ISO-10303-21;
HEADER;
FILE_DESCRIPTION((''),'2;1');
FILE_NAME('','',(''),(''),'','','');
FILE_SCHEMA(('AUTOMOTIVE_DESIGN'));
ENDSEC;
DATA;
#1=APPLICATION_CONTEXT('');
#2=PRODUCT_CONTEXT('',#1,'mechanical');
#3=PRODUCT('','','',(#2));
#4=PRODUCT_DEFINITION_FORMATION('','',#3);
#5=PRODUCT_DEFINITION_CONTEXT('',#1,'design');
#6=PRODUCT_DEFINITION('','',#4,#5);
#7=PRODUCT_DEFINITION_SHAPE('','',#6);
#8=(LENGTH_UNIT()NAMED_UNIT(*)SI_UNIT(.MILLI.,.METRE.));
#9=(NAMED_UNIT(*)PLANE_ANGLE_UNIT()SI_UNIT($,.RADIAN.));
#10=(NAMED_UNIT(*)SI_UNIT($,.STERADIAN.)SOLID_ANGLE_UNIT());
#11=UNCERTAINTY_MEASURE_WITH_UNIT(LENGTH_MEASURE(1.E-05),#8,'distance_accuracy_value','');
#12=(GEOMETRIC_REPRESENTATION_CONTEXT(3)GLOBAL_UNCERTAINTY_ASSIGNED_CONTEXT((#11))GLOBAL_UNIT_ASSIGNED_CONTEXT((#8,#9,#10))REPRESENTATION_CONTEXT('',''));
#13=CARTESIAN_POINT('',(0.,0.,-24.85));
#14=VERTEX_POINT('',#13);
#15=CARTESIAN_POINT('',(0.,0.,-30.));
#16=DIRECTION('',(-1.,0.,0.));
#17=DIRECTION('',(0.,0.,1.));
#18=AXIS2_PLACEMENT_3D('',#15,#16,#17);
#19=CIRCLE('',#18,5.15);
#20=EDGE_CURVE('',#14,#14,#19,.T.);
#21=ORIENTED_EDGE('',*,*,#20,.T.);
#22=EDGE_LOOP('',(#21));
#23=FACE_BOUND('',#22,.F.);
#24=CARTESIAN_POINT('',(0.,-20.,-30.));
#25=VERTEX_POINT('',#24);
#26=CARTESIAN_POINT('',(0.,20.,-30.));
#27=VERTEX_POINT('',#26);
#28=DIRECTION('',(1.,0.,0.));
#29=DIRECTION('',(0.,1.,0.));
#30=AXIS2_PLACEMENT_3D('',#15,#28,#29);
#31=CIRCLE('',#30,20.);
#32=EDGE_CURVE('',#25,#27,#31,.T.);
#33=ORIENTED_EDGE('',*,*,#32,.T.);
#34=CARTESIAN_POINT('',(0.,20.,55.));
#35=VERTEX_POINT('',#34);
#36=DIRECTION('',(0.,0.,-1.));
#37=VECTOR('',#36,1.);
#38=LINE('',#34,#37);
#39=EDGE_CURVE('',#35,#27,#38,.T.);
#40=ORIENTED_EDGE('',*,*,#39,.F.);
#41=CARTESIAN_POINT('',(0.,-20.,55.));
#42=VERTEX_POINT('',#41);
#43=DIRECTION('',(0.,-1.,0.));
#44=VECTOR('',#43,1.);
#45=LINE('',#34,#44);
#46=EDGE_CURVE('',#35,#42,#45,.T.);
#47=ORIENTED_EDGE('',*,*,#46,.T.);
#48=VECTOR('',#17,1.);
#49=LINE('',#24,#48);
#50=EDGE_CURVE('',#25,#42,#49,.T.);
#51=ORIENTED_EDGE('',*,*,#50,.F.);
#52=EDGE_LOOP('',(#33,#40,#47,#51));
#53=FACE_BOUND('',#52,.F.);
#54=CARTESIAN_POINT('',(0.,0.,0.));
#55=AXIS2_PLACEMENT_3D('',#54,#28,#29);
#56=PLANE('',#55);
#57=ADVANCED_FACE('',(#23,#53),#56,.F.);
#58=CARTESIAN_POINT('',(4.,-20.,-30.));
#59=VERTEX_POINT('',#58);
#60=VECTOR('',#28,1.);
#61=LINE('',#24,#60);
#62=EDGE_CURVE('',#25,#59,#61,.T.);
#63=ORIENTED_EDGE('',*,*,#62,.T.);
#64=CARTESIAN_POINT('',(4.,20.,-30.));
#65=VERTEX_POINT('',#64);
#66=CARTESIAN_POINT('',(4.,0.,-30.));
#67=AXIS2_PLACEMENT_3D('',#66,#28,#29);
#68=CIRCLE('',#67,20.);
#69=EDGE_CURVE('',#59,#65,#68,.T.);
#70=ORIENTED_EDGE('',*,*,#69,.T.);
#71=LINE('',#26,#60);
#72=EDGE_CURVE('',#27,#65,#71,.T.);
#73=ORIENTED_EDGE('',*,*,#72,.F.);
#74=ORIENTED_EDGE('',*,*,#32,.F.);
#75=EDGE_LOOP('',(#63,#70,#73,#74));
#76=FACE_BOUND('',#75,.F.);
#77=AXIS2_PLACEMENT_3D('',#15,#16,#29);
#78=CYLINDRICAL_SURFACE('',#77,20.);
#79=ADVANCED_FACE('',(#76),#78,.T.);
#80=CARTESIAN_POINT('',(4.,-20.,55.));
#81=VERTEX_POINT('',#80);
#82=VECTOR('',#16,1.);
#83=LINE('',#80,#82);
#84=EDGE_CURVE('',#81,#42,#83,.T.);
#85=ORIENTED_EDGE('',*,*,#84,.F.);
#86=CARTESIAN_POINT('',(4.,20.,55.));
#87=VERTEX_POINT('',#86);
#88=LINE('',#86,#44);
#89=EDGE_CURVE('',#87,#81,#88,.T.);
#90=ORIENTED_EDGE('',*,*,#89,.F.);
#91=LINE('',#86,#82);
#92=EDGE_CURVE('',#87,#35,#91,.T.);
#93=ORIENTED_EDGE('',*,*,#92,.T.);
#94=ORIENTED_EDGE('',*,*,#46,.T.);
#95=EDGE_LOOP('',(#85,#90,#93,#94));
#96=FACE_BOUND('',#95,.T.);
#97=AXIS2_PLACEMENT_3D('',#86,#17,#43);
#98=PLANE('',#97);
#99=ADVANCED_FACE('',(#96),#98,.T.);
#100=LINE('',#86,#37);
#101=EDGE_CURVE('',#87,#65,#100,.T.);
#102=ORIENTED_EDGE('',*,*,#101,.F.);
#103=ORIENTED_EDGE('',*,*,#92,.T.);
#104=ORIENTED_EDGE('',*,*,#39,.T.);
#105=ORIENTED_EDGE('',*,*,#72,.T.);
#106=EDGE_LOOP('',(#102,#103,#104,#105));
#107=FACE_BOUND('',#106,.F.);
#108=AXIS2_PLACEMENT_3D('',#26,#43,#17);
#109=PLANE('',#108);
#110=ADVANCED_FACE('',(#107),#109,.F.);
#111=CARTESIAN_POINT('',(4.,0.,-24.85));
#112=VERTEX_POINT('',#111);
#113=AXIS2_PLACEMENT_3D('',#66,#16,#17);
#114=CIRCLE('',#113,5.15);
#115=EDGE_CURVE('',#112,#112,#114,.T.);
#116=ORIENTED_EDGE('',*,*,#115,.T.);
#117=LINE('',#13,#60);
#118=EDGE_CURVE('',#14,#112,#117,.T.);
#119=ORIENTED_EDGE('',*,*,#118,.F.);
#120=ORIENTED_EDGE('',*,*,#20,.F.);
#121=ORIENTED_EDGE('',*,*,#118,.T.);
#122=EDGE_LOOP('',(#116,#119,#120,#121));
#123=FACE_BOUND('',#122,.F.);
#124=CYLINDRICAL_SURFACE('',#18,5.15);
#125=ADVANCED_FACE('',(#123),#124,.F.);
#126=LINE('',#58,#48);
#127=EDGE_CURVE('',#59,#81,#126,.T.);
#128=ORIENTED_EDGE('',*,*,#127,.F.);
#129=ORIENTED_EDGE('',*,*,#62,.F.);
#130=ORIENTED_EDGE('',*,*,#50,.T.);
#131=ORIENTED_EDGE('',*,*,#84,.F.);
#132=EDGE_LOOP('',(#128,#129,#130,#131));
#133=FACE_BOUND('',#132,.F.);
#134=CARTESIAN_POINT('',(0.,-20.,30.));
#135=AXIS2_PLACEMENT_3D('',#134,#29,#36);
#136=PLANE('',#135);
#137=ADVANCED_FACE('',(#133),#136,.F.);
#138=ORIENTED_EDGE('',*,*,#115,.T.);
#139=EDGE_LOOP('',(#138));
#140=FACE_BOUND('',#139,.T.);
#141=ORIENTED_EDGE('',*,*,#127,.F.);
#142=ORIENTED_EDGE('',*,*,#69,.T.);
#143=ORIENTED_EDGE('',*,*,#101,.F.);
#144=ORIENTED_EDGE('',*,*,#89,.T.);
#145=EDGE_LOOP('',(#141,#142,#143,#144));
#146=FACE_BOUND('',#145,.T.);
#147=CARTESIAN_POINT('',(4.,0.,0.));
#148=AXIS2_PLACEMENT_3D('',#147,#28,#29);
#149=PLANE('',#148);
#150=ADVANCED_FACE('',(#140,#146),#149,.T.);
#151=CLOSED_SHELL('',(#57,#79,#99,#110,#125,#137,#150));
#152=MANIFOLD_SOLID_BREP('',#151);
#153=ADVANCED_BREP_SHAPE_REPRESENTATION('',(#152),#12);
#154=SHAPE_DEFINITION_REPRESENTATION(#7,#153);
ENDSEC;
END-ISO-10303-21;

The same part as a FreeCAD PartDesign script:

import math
import FreeCAD as App
import Part
import Sketcher

V = App.Vector


def add_polygon(sketch, points):
    """Adds a closed chain of lines whose ends are joined by coincident constraints."""
    first, n = sketch.GeometryCount, len(points)
    for a, b in zip(points, points[1:] + points[:1]):
        sketch.addGeometry(Part.LineSegment(App.Vector(*a, 0), App.Vector(*b, 0)), False)
    for i in range(n):
        sketch.addConstraint(Sketcher.Constraint("Coincident", first + i, 2, first + (i + 1) % n, 1))

doc = App.newDocument("Part")
body = doc.addObject("PartDesign::Body", "Body")

sketch1 = body.newObject("Sketcher::SketchObject", "Sketch")
sketch1.AttachmentSupport = (doc.getObject("YZ_Plane"), [""])
sketch1.MapMode = "FlatFace"
sketch1.addGeometry([
    Part.LineSegment(V(-20, 30, 0), V(-20, -30, 0)),
    Part.ArcOfCircle(Part.Circle(V(0, -30, 0), V(0, 0, 1), 20), math.radians(180), math.radians(360)),
    Part.LineSegment(V(20, -30, 0), V(20, 30, 0)),
    Part.LineSegment(V(20, 30, 0), V(-20, 30, 0)),
], False)
sketch1.addConstraint([
    Sketcher.Constraint("Tangent", 0, 2, 1, 1),
    Sketcher.Constraint("Tangent", 1, 2, 2, 1),
    Sketcher.Constraint("Coincident", 2, 2, 3, 1),
    Sketcher.Constraint("Coincident", 3, 2, 0, 1),
    Sketcher.Constraint("Vertical", 0),
    Sketcher.Constraint("Vertical", 2),
    Sketcher.Constraint("Horizontal", 3),
    Sketcher.Constraint("Symmetric", 0, 2, 2, 2, -1, 1),
    Sketcher.Constraint("Radius", 1, 20.0),
    Sketcher.Constraint("DistanceY", 0, 2, 0, 1, 60.0),
])
pad1 = body.newObject("PartDesign::Pad", "Pad")
pad1.Profile = sketch1
pad1.Length = 4

sketch2 = body.newObject("Sketcher::SketchObject", "Sketch001")
sketch2.AttachmentSupport = (doc.getObject("YZ_Plane"), [""])
sketch2.MapMode = "FlatFace"
sketch2.AttachmentOffset = App.Placement(V(0, 0, 4), App.Rotation())
add_polygon(sketch2, [(-20, 5), (20, 5), (20, 55), (-20, 55)])
sketch2.addConstraint([
    Sketcher.Constraint("Horizontal", 0),
    Sketcher.Constraint("Vertical", 1),
    Sketcher.Constraint("Horizontal", 2),
    Sketcher.Constraint("Vertical", 3),
    Sketcher.Constraint("DistanceX", 0, 1, 0, 2, 40.0),
    Sketcher.Constraint("DistanceY", 1, 1, 1, 2, 50.0),
    Sketcher.Constraint("DistanceY", -1, 1, 0, 2, 5.0),
    Sketcher.Constraint("DistanceX", -1, 1, 0, 2, 20.0),
])
pad2 = body.newObject("PartDesign::Pad", "Pad001")
pad2.Profile = sketch2
pad2.Length = 4
pad2.Reversed = True

sketch3 = body.newObject("Sketcher::SketchObject", "Sketch002")
sketch3.AttachmentSupport = (doc.getObject("YZ_Plane"), [""])
sketch3.MapMode = "FlatFace"
sketch3.addGeometry(Part.Circle(V(0, -30, 0), V(0, 0, 1), 5), False)
sketch3.addConstraint([
    Sketcher.Constraint("PointOnObject", 0, 3, -2),
    Sketcher.Constraint("Diameter", 0, 10.3),
    Sketcher.Constraint("DistanceY", 0, 3, -1, 1, 30.0),
])
pocket1 = body.newObject("PartDesign::Pocket", "Pocket")
pocket1.Profile = sketch3
pocket1.Length = 4
pocket1.Reversed = True

doc.recompute()
